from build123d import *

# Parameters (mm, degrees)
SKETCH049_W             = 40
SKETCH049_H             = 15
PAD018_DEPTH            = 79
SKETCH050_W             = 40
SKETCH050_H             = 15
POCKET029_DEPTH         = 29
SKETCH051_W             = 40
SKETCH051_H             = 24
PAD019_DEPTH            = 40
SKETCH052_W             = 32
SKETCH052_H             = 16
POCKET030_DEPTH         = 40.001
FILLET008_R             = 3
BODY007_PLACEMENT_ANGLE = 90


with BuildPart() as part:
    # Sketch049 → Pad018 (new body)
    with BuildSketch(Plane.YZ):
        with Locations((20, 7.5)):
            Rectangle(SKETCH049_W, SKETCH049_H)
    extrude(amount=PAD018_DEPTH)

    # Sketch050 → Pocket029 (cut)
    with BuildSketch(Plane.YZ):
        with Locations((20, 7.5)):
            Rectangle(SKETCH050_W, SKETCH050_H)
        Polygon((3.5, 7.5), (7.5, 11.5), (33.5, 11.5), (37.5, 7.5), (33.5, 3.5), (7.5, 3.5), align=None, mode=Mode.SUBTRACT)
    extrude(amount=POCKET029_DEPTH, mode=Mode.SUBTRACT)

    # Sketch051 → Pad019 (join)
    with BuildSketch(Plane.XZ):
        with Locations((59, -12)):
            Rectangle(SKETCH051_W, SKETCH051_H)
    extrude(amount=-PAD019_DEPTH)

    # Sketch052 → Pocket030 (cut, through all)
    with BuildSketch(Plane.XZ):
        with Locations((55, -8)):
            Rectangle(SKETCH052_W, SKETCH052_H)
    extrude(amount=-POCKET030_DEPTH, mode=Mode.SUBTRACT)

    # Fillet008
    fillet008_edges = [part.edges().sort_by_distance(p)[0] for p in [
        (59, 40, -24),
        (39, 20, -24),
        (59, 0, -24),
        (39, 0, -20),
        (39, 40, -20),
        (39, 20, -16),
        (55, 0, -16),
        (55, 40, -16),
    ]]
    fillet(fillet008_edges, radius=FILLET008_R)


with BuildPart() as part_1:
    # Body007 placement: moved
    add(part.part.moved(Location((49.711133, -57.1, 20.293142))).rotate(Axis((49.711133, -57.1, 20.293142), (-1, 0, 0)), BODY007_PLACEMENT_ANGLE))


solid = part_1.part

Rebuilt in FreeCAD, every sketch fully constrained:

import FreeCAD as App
import Part
import Sketcher

V = App.Vector
Q = App.Units.Quantity


def edges_at(feature, points):
    """Names of the edges that pass closest to the given points."""
    edges = feature.Shape.Edges
    near = lambda p: min(range(len(edges)), key=lambda i: edges[i].distToShape(Part.Vertex(*p))[0])
    return sorted({f"Edge{near(p) + 1}" for p in points})


def add_polygon(sketch, points):
    """Adds a closed chain of lines whose ends are joined by coincident constraints."""
    first, n = sketch.GeometryCount, len(points)
    for a, b in zip(points, points[1:] + points[:1]):
        sketch.addGeometry(Part.LineSegment(App.Vector(*a, 0), App.Vector(*b, 0)), False)
    for i in range(n):
        sketch.addConstraint(Sketcher.Constraint("Coincident", first + i, 2, first + (i + 1) % n, 1))

doc = App.newDocument("Part")
body = doc.addObject("PartDesign::Body", "Body")

# Sketch on YZ plane
sketch1 = body.newObject("Sketcher::SketchObject", "Sketch")
sketch1.AttachmentSupport = (doc.getObject("YZ_Plane"), [""])
sketch1.MapMode = "FlatFace"
add_polygon(sketch1, [(0, 15), (0, 0), (40, 0), (40, 15)])  # lines 0-3
sketch1.addConstraint([
    Sketcher.Constraint("Vertical", 0),
    Sketcher.Constraint("Horizontal", 1),
    Sketcher.Constraint("Vertical", 2),
    Sketcher.Constraint("Horizontal", 3),
    Sketcher.Constraint("Coincident", 0, 2, -1, 1),
    Sketcher.Constraint("DistanceX", 1, 1, 1, 2, Q("40 mm")),
    Sketcher.Constraint("DistanceY", 0, 2, 0, 1, Q("15 mm")),
])
pad1 = body.newObject("PartDesign::Pad", "Pad")
pad1.Profile = sketch1
pad1.Length = 79

# Sketch on YZ plane
sketch2 = body.newObject("Sketcher::SketchObject", "Sketch001")
sketch2.AttachmentSupport = (doc.getObject("YZ_Plane"), [""])
sketch2.MapMode = "FlatFace"
add_polygon(sketch2, [(0, 15), (0, 0), (40, 0), (40, 15)])  # lines 0-3
add_polygon(sketch2, [(7.5, 3.5), (3.5, 7.5), (7.5, 11.5), (33.5, 11.5), (37.5, 7.5), (33.5, 3.5)])  # lines 4-9
sketch2.addConstraint([
    Sketcher.Constraint("Vertical", 0),
    Sketcher.Constraint("Horizontal", 1),
    Sketcher.Constraint("Vertical", 2),
    Sketcher.Constraint("Horizontal", 3),
    Sketcher.Constraint("Horizontal", 6),
    Sketcher.Constraint("Horizontal", 9),
    Sketcher.Constraint("Coincident", 0, 2, -1, 1),
    Sketcher.Constraint("Perpendicular", 4, 5),
    Sketcher.Constraint("Perpendicular", 5, 7),
    Sketcher.Constraint("Perpendicular", 7, 8),
    Sketcher.Constraint("Horizontal", 4, 2, 7, 2),
    Sketcher.Constraint("Vertical", 6, 2, 8, 2),
    Sketcher.Constraint("Vertical", 5, 2, 9, 2),
    Sketcher.Constraint("DistanceX", 1, 1, 1, 2, Q("40 mm")),
    Sketcher.Constraint("DistanceX", 6, 1, 6, 2, Q("26 mm")),
    Sketcher.Constraint("DistanceY", 0, 2, 0, 1, Q("15 mm")),
    Sketcher.Constraint("DistanceX", 4, 2, 5, 2, Q("4 mm")),
    Sketcher.Constraint("DistanceX", -1, 1, 4, 2, Q("3.5 mm")),
    Sketcher.Constraint("DistanceY", -1, 1, 4, 2, Q("7.5 mm")),
])
pocket1 = body.newObject("PartDesign::Pocket", "Pocket")
pocket1.Profile = sketch2
pocket1.Length = 29
pocket1.Reversed = True

# Sketch on XZ plane
sketch3 = body.newObject("Sketcher::SketchObject", "Sketch002")
sketch3.AttachmentSupport = (doc.getObject("XZ_Plane"), [""])
sketch3.MapMode = "FlatFace"
add_polygon(sketch3, [(39, 0), (39, -24), (79, -24), (79, 0)])  # lines 0-3
sketch3.addConstraint([
    Sketcher.Constraint("Vertical", 0),
    Sketcher.Constraint("Horizontal", 1),
    Sketcher.Constraint("Vertical", 2),
    Sketcher.Constraint("Horizontal", 3),
    Sketcher.Constraint("PointOnObject", 2, 2, -1),
    Sketcher.Constraint("DistanceX", 1, 1, 1, 2, Q("40 mm")),
    Sketcher.Constraint("DistanceY", 0, 2, 0, 1, Q("24 mm")),
    Sketcher.Constraint("DistanceX", -1, 1, 0, 2, Q("39 mm")),
])
pad2 = body.newObject("PartDesign::Pad", "Pad001")
pad2.Profile = sketch3
pad2.Length = 40
pad2.Reversed = True

# Sketch on XZ plane
sketch4 = body.newObject("Sketcher::SketchObject", "Sketch003")
sketch4.AttachmentSupport = (doc.getObject("XZ_Plane"), [""])
sketch4.MapMode = "FlatFace"
add_polygon(sketch4, [(39, 0), (39, -16), (71, -16), (71, 0)])  # lines 0-3
sketch4.addConstraint([
    Sketcher.Constraint("Vertical", 0),
    Sketcher.Constraint("Horizontal", 1),
    Sketcher.Constraint("Vertical", 2),
    Sketcher.Constraint("Horizontal", 3),
    Sketcher.Constraint("PointOnObject", 2, 2, -1),
    Sketcher.Constraint("DistanceX", 1, 1, 1, 2, Q("32 mm")),
    Sketcher.Constraint("DistanceY", 0, 2, 0, 1, Q("16 mm")),
    Sketcher.Constraint("DistanceX", -1, 1, 0, 2, Q("39 mm")),
])
pocket2 = body.newObject("PartDesign::Pocket", "Pocket001")
pocket2.Profile = sketch4
pocket2.Type = "ThroughAll"
doc.recompute()

fillet = body.newObject("PartDesign::Fillet", "Fillet")
fillet.Base = (pocket2, edges_at(pocket2, [
    (59, 40, -24),
    (39, 20, -24),
    (59, 0, -24),
    (39, 0, -20),
    (39, 40, -20),
    (39, 20, -16),
    (55, 0, -16),
    (55, 40, -16),
]))
fillet.Radius = 3
body2 = doc.addObject("PartDesign::Body", "Body001")
doc.recompute()

body.Placement = App.Placement(V(49.711133, -57.1, 20.293142), App.Rotation(V(-1, 0, 0), 90))
boolean = body2.newObject("PartDesign::Boolean", "Boolean")
boolean.Type = "Fuse"
boolean.addObjects([body])

doc.recompute()
